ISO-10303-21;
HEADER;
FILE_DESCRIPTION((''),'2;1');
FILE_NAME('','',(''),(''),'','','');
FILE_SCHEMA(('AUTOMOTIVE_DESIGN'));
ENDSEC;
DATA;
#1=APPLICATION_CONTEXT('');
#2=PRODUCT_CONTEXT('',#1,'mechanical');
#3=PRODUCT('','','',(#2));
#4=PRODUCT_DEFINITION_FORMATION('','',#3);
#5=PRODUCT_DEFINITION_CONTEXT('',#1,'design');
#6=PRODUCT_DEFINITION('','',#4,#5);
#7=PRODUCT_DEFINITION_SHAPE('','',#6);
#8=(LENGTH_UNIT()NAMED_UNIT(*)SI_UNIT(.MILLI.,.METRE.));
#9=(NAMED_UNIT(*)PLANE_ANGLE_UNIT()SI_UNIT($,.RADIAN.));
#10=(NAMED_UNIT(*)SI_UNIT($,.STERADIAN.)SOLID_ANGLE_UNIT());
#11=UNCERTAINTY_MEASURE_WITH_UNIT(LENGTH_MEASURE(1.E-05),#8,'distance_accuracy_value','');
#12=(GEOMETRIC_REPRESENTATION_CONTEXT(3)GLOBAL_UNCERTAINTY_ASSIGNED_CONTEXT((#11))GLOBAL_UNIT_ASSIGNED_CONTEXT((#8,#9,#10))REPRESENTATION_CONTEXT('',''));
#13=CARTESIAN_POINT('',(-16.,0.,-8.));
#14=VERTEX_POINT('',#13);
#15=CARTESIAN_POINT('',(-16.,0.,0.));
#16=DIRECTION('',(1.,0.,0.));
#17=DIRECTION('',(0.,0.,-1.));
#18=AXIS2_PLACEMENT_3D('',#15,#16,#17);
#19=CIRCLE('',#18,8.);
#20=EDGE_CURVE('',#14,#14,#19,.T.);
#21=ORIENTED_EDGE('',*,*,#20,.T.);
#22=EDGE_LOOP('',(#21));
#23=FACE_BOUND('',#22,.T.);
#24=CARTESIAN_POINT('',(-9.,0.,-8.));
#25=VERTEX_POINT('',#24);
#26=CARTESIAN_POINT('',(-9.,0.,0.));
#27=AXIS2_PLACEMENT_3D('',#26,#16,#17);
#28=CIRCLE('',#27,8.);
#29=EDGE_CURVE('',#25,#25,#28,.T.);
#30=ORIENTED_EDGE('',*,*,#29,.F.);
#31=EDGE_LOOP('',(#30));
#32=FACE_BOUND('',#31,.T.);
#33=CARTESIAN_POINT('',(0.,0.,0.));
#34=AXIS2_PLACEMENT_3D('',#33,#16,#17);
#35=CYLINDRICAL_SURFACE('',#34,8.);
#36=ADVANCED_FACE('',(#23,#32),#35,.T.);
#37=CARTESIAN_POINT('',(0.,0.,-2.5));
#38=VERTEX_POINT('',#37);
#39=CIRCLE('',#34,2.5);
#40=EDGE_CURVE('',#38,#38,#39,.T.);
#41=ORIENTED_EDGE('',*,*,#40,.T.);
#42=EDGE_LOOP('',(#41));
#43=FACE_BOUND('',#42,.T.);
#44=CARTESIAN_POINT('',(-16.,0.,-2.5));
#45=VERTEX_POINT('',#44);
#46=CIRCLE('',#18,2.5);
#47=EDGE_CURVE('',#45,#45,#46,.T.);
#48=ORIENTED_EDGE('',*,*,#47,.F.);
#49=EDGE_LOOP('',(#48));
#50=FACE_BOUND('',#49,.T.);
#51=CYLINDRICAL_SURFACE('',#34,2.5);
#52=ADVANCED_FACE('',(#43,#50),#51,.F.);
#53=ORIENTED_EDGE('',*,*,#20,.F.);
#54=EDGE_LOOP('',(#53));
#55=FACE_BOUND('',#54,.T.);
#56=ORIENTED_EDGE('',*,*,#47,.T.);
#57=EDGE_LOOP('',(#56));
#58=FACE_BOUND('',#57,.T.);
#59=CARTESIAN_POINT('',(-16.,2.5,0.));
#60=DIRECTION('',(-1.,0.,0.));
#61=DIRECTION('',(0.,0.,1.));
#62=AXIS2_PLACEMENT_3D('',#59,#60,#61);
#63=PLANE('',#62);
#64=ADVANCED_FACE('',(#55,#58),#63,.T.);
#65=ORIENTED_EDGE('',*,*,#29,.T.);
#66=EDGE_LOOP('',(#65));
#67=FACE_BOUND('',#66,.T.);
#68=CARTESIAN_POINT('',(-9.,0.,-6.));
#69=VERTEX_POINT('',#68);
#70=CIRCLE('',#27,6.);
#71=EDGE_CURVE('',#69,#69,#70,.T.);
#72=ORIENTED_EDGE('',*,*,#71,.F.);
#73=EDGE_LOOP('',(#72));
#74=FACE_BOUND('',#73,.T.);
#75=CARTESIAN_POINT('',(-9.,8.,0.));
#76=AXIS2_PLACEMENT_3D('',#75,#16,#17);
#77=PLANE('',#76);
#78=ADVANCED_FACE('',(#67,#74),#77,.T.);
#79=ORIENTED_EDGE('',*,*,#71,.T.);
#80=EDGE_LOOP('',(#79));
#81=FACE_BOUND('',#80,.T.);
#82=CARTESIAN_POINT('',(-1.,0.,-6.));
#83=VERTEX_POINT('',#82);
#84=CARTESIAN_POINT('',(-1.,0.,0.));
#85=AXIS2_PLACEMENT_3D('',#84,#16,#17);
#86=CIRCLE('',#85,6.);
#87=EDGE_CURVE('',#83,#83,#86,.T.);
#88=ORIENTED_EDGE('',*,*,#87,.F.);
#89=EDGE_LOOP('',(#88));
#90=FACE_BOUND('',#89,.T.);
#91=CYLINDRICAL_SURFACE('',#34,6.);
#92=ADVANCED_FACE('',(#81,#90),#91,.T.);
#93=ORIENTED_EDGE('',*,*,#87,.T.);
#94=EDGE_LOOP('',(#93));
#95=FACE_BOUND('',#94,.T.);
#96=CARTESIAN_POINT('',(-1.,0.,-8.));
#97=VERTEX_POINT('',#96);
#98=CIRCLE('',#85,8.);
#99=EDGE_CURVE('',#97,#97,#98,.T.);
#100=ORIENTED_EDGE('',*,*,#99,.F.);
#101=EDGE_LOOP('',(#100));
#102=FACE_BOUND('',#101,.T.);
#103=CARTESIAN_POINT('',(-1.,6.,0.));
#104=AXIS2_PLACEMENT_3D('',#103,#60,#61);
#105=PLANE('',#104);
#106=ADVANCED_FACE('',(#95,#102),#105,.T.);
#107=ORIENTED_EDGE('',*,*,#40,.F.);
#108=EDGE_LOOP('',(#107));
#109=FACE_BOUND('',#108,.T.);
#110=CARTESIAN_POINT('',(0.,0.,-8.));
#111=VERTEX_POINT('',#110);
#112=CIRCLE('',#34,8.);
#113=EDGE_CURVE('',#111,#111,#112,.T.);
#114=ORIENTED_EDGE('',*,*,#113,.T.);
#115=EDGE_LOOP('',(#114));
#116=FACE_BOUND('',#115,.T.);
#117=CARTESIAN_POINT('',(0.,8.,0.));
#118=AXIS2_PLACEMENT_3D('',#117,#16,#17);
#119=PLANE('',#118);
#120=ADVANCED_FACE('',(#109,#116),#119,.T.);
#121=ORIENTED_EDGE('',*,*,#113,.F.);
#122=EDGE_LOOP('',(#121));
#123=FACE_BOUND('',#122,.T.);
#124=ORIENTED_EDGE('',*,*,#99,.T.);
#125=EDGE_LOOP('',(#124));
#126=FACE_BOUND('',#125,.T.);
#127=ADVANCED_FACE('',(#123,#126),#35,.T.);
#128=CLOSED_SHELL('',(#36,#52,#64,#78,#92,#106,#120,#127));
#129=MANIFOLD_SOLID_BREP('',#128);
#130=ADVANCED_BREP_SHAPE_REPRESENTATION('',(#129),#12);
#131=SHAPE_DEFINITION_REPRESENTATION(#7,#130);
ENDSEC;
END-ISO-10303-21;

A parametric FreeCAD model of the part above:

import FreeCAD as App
import Part
import Sketcher
from FreeCAD import Vector

doc = App.newDocument("Part")
body = doc.addObject("PartDesign::Body", "Body")

sketch1 = body.newObject("Sketcher::SketchObject", "Sketch")
sketch1.AttachmentSupport = (doc.getObject("XY_Plane"), [""])
sketch1.MapMode = "FlatFace"
sketch1.addGeometry([
    Part.LineSegment(Vector(-16, 2.5, 0), Vector(0, 2.5, 0)),
    Part.LineSegment(Vector(0, 2.5, 0), Vector(0, 8, 0)),
    Part.LineSegment(Vector(0, 8, 0), Vector(-1, 8, 0)),
    Part.LineSegment(Vector(-1, 8, 0), Vector(-1, 6, 0)),
    Part.LineSegment(Vector(-1, 6, 0), Vector(-9, 6, 0)),
    Part.LineSegment(Vector(-9, 6, 0), Vector(-9, 8, 0)),
    Part.LineSegment(Vector(-9, 8, 0), Vector(-16, 8, 0)),
    Part.LineSegment(Vector(-16, 8, 0), Vector(-16, 2.5, 0)),
], False)
sketch1.addConstraint([
    Sketcher.Constraint("Coincident", 0, 2, 1, 1),
    Sketcher.Constraint("Coincident", 1, 2, 2, 1),
    Sketcher.Constraint("Coincident", 2, 2, 3, 1),
    Sketcher.Constraint("Coincident", 3, 2, 4, 1),
    Sketcher.Constraint("Coincident", 4, 2, 5, 1),
    Sketcher.Constraint("Coincident", 5, 2, 6, 1),
    Sketcher.Constraint("Coincident", 6, 2, 7, 1),
    Sketcher.Constraint("Coincident", 7, 2, 0, 1),
    Sketcher.Constraint("Horizontal", 0),
    Sketcher.Constraint("Vertical", 1),
    Sketcher.Constraint("Horizontal", 2),
    Sketcher.Constraint("Vertical", 3),
    Sketcher.Constraint("Horizontal", 4),
    Sketcher.Constraint("Vertical", 5),
    Sketcher.Constraint("Horizontal", 6),
    Sketcher.Constraint("Vertical", 7),
    Sketcher.Constraint("PointOnObject", 0, 2, -2),
    Sketcher.Constraint("Horizontal", 2, 2, 5, 2),
    Sketcher.Constraint("DistanceX", 0, 1, 0, 2, 16.0),
    Sketcher.Constraint("DistanceX", 2, 2, 2, 1, 1.0),
    Sketcher.Constraint("DistanceX", 4, 2, 4, 1, 8.0),
    Sketcher.Constraint("DistanceY", 3, 2, 3, 1, 2.0),
    Sketcher.Constraint("DistanceY", 1, 1, 1, 2, 5.5),
    Sketcher.Constraint("DistanceY", -1, 1, 1, 2, 8.0),
])
revolution = body.newObject("PartDesign::Revolution", "Revolution")
revolution.Profile = sketch1
revolution.ReferenceAxis = (sketch1, ["H_Axis"])
revolution.Angle = 360

doc.recompute()
